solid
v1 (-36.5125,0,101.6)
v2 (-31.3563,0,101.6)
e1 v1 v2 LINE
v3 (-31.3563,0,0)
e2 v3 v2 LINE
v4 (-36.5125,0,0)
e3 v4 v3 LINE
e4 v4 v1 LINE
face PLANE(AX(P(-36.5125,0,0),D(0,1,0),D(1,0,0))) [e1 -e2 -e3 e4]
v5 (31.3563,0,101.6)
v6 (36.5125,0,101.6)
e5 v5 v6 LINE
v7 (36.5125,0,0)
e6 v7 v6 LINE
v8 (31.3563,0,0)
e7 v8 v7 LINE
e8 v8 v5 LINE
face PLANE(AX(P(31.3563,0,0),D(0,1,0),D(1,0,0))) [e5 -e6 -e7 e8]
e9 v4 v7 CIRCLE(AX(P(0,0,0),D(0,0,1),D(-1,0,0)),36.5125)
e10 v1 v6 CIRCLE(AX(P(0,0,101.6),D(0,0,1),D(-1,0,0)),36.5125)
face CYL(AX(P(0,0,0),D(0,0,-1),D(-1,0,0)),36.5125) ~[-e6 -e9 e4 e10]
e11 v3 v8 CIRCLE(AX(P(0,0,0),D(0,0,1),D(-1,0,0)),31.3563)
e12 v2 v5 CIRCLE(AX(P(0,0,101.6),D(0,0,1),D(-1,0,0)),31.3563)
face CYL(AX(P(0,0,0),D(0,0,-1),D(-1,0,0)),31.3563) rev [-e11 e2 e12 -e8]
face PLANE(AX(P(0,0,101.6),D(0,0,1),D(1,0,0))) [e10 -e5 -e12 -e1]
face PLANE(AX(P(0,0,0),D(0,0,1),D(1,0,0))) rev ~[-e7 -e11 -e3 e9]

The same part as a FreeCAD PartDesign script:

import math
import FreeCAD as App
import Part
import Sketcher
Q = App.Units.Quantity

doc = App.newDocument("Part")
params = doc.addObject("Spreadsheet::Sheet", "Params")
for row, (alias, value) in enumerate([
    ("sketch1_radius", "1.4375 in"),
    ("sketch1_width", "0.203 in"),
    ("pad1_length", "4 in"),
], start=1):
    params.set(f"A{row}", alias)
    params.set(f"B{row}", "=" + value)
    params.setAlias(f"B{row}", alias)

body = doc.addObject("PartDesign::Body", "Body")

# Sketch on XY plane
sketch1 = body.newObject("Sketcher::SketchObject", "Sketch")
sketch1.AttachmentSupport = (doc.getObject("XY_Plane"), [""])
sketch1.MapMode = "FlatFace"
sketch1.addGeometry([
    Part.LineSegment(App.Vector(-31, 0, 0), App.Vector(-37, 0, 0)),
    Part.ArcOfCircle(Part.Circle(App.Vector(0, 0, 0), App.Vector(0, 0, 1), 37), math.radians(180), math.radians(360)),
    Part.LineSegment(App.Vector(37, 0, 0), App.Vector(31, 0, 0)),
    Part.ArcOfCircle(Part.Circle(App.Vector(0, 0, 0), App.Vector(0, 0, 1), 31), math.radians(180), math.radians(360)),
], False)
sketch1.addConstraint([
    Sketcher.Constraint("Coincident", 0, 2, 1, 1),
    Sketcher.Constraint("Coincident", 1, 2, 2, 1),
    Sketcher.Constraint("Coincident", 2, 2, 3, 2),
    Sketcher.Constraint("Coincident", 3, 1, 0, 1),
    Sketcher.Constraint("Horizontal", 0),
    Sketcher.Constraint("Horizontal", 2),
    Sketcher.Constraint("Coincident", 1, 3, -1, 1),
    Sketcher.Constraint("Coincident", 3, 3, -1, 1),
    Sketcher.Constraint("PointOnObject", 0, 2, -1),
    Sketcher.Constraint("PointOnObject", 1, 2, -1),
    Sketcher.Constraint("Radius", 1, Q("1.4375 in")),
    Sketcher.Constraint("DistanceX", 0, 2, 0, 1, Q("0.203 in")),
])
sketch1.setExpression("Constraints[10]", "Params.sketch1_radius")
sketch1.setExpression("Constraints[11]", "Params.sketch1_width")
pad1 = body.newObject("PartDesign::Pad", "Pad")
pad1.Profile = sketch1
pad1.setExpression("Length", "Params.pad1_length")

doc.recompute()
